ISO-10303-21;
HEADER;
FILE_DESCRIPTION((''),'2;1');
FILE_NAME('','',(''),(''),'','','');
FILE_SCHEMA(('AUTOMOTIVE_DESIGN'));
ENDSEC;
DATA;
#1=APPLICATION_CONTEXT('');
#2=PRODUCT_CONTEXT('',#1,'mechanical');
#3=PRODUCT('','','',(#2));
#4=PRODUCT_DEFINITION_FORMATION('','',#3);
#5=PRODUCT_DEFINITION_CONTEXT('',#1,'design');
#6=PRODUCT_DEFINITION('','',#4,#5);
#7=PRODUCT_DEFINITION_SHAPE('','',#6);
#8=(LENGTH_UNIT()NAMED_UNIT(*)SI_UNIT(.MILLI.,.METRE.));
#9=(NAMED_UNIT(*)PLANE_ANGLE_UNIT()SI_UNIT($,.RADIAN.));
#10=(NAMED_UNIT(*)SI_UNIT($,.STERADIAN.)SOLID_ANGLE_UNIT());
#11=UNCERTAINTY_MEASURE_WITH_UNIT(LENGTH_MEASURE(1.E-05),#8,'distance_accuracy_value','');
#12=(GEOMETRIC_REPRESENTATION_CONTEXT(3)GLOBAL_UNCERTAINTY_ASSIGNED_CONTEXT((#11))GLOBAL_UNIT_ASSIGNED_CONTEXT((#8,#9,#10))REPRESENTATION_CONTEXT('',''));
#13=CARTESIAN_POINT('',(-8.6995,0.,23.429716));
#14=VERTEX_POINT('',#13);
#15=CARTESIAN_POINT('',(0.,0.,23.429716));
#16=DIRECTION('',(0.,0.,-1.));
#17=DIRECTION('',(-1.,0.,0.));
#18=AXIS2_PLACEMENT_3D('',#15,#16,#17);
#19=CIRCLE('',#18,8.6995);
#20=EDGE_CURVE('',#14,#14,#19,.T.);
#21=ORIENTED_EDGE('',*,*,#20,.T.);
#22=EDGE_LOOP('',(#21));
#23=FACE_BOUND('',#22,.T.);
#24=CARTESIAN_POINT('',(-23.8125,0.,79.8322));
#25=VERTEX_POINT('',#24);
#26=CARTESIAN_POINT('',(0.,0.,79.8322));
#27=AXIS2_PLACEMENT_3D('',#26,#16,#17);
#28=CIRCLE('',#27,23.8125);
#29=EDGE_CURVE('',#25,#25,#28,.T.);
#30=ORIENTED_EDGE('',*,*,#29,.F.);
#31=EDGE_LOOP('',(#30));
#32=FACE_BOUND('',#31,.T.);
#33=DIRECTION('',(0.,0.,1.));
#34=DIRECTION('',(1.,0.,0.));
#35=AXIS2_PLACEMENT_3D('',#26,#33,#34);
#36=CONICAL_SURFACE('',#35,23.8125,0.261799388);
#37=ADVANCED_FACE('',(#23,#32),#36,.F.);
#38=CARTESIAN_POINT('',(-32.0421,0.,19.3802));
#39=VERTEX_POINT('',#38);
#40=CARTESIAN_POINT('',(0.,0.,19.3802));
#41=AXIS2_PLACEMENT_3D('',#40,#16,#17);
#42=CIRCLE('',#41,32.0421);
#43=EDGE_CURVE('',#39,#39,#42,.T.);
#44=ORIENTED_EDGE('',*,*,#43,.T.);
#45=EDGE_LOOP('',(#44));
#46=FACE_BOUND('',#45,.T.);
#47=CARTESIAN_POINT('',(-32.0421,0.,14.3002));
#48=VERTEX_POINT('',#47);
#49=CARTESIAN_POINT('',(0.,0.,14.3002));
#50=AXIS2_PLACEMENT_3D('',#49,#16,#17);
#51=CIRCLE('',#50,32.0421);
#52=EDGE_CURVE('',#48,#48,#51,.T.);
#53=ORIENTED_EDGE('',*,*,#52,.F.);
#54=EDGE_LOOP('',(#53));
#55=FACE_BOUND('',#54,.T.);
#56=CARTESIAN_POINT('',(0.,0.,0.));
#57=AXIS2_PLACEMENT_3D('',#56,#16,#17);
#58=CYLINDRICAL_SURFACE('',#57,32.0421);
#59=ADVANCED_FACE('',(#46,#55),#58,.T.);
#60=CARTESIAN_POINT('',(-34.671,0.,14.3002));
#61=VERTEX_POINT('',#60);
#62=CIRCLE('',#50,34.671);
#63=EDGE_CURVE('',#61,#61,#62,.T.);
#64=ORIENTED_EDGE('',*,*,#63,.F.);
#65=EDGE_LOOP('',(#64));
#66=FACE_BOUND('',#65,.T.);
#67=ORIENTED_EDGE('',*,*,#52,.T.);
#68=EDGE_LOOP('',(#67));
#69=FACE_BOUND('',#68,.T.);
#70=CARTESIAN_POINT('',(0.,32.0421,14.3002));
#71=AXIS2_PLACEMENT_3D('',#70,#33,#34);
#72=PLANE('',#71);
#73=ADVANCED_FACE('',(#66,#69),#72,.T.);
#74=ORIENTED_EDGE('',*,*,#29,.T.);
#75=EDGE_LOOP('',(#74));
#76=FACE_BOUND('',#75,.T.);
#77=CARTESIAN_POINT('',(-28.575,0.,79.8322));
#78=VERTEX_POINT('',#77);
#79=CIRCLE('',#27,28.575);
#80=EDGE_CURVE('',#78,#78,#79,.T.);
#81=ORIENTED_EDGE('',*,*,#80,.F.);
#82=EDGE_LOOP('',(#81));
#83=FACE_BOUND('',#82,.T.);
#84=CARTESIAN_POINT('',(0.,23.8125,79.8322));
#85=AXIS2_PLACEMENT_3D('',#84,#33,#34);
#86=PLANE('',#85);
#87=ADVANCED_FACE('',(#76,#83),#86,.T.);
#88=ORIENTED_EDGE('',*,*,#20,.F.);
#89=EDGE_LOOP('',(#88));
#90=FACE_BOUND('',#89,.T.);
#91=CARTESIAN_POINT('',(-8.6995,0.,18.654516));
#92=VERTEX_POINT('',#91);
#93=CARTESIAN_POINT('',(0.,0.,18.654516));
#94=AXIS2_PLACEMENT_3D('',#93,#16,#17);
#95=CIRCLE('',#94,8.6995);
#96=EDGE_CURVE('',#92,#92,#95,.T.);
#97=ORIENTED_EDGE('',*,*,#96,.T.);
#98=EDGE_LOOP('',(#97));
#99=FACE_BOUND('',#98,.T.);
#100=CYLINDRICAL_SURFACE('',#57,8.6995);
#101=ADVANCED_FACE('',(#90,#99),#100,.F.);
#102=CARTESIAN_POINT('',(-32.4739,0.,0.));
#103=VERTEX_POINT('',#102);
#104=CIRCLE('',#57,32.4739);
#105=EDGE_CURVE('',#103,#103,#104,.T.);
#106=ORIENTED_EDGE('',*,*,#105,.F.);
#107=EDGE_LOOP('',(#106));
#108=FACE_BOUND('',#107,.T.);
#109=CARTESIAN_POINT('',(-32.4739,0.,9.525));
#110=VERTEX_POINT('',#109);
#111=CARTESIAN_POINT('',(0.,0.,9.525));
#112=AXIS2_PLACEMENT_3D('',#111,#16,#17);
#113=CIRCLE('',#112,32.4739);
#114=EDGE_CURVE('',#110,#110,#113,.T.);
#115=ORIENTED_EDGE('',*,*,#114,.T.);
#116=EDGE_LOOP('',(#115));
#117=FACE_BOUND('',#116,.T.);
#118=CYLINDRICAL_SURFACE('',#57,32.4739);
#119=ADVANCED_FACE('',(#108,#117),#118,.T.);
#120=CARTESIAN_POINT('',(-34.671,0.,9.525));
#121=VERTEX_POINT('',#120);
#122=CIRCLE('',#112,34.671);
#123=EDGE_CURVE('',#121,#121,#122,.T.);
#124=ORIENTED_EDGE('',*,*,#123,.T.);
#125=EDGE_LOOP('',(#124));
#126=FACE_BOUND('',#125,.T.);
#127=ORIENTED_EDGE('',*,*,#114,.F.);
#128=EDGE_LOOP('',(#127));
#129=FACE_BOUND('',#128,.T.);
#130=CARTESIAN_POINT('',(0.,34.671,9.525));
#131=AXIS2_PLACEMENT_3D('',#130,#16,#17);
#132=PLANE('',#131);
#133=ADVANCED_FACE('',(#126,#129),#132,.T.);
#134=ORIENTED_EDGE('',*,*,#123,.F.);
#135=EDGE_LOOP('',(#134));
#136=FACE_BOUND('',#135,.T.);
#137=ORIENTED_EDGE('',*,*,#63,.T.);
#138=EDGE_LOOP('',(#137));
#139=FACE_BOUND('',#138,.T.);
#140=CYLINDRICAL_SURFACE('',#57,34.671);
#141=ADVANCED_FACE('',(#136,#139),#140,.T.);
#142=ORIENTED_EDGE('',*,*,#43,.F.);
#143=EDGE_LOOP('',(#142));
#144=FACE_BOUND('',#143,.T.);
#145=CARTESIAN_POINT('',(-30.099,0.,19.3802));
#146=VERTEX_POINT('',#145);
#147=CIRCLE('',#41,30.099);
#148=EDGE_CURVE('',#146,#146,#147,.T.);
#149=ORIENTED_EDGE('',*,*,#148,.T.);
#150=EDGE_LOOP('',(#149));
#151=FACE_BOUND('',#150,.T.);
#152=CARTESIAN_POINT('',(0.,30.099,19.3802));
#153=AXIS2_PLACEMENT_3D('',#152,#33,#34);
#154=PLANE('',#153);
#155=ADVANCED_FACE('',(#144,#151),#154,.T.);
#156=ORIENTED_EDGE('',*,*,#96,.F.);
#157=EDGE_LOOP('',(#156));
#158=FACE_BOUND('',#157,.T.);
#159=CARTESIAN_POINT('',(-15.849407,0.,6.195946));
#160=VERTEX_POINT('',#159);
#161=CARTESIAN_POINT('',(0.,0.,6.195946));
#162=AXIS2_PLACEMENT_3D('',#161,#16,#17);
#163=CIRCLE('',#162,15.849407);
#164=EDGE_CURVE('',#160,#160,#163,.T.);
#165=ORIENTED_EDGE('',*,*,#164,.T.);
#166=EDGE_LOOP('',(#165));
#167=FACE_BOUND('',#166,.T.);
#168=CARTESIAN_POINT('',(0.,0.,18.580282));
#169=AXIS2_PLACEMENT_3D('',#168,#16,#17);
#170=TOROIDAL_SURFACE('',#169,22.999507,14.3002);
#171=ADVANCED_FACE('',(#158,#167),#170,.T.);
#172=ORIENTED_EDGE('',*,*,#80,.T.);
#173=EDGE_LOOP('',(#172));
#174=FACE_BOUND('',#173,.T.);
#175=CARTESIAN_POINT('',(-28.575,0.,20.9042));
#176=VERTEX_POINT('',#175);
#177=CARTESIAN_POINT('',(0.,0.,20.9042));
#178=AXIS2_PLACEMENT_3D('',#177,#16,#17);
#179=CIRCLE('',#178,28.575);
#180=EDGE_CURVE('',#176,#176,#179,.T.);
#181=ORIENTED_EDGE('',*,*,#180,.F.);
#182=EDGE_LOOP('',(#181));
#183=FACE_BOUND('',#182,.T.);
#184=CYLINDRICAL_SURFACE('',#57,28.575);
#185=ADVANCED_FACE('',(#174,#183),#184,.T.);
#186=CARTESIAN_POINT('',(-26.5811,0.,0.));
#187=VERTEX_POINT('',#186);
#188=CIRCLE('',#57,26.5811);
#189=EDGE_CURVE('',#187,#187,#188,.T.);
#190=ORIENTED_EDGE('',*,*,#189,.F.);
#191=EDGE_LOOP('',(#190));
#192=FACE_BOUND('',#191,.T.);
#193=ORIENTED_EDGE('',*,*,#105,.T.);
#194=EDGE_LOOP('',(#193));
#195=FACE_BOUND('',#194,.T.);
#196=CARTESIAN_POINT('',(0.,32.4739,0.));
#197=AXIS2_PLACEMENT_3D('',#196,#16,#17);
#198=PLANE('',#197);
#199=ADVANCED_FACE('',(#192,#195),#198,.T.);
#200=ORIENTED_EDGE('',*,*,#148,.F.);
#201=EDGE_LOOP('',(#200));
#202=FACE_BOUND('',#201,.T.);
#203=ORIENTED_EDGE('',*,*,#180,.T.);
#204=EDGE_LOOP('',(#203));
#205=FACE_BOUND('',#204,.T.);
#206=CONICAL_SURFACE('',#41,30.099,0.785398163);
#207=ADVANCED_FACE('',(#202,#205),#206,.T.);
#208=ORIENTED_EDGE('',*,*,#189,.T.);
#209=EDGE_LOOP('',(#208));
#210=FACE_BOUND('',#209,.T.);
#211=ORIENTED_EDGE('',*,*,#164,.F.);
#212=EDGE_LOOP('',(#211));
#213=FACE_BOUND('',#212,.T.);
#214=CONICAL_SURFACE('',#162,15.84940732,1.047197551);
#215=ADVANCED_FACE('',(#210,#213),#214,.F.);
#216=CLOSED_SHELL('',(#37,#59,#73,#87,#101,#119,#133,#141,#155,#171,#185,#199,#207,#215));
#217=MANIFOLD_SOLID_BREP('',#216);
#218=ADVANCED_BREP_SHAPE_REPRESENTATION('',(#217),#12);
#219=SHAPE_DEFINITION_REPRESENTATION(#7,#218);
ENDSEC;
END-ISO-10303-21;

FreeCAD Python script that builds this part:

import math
import FreeCAD as App
import Part
import Sketcher
from FreeCAD import Vector
Q = App.Units.Quantity

doc = App.newDocument("Part")
params = doc.addObject("Spreadsheet::Sheet", "Params")
for row, (alias, value) in enumerate([
    ("sketch1_height", "0.2 in"),
    ("sketch1_radius", "0.563 in"),
    ("sketch1_height2", "2.32 in"),
    ("sketch1_width", "0.1875 in"),
    ("sketch1_width2", "0.232 in"),
    ("revolution_angle", "360 deg"),
], start=1):
    params.set(f"A{row}", alias)
    params.set(f"B{row}", "=" + value)
    params.setAlias(f"B{row}", alias)

body = doc.addObject("PartDesign::Body", "Body")

# Sketch on YZ plane
sketch1 = body.newObject("Sketcher::SketchObject", "Sketch")
sketch1.AttachmentSupport = (doc.getObject("YZ_Plane"), [""])
sketch1.MapMode = "FlatFace"
sketch1.addGeometry(Part.LineSegment(Vector(28.6, 20.9, 0), Vector(28.6, 79.8, 0)), False)
sketch1.addGeometry(Part.LineSegment(Vector(28.6, 79.8, 0), Vector(23.8, 79.8, 0)), False)
sketch1.addGeometry(Part.LineSegment(Vector(23.8, 79.8, 0), Vector(8.7, 23.4, 0)), False)
sketch1.addGeometry(Part.LineSegment(Vector(8.7, 23.4, 0), Vector(8.7, 18.7, 0)), False)
sketch1.addGeometry(Part.ArcOfCircle(Part.Circle(Vector(23, 18.6, 0), Vector(0, 0, 1), 14.3), math.radians(180), math.radians(240)), False)
sketch1.addGeometry(Part.LineSegment(Vector(15.8, 6.2, 0), Vector(26.6, 0, 0)), False)
sketch1.addGeometry(Part.LineSegment(Vector(26.6, 0, 0), Vector(32.5, 0, 0)), False)
sketch1.addGeometry(Part.LineSegment(Vector(32.5, 0, 0), Vector(32.5, 9.5, 0)), False)
sketch1.addGeometry(Part.LineSegment(Vector(32.5, 9.5, 0), Vector(34.7, 9.5, 0)), False)
sketch1.addGeometry(Part.LineSegment(Vector(34.7, 9.5, 0), Vector(34.7, 14.3, 0)), False)
sketch1.addGeometry(Part.LineSegment(Vector(34.7, 14.3, 0), Vector(32, 14.3, 0)), False)
sketch1.addGeometry(Part.LineSegment(Vector(32, 14.3, 0), Vector(32, 19.4, 0)), False)
sketch1.addGeometry(Part.LineSegment(Vector(32, 19.4, 0), Vector(30.1, 19.4, 0)), False)
sketch1.addGeometry(Part.LineSegment(Vector(30.1, 19.4, 0), Vector(28.6, 20.9, 0)), False)
sketch1.addConstraint(Sketcher.Constraint("Coincident", 0, 2, 1, 1))
sketch1.addConstraint(Sketcher.Constraint("Coincident", 1, 2, 2, 1))
sketch1.addConstraint(Sketcher.Constraint("Coincident", 2, 2, 3, 1))
sketch1.addConstraint(Sketcher.Constraint("Coincident", 3, 2, 4, 1))
sketch1.addConstraint(Sketcher.Constraint("Tangent", 4, 2, 5, 1))
sketch1.addConstraint(Sketcher.Constraint("Coincident", 5, 2, 6, 1))
sketch1.addConstraint(Sketcher.Constraint("Coincident", 6, 2, 7, 1))
sketch1.addConstraint(Sketcher.Constraint("Coincident", 7, 2, 8, 1))
sketch1.addConstraint(Sketcher.Constraint("Coincident", 8, 2, 9, 1))
sketch1.addConstraint(Sketcher.Constraint("Coincident", 9, 2, 10, 1))
sketch1.addConstraint(Sketcher.Constraint("Coincident", 10, 2, 11, 1))
sketch1.addConstraint(Sketcher.Constraint("Coincident", 11, 2, 12, 1))
sketch1.addConstraint(Sketcher.Constraint("Coincident", 12, 2, 13, 1))
sketch1.addConstraint(Sketcher.Constraint("Coincident", 13, 2, 0, 1))
sketch1.addConstraint(Sketcher.Constraint("Vertical", 0))
sketch1.addConstraint(Sketcher.Constraint("Horizontal", 1))
sketch1.addConstraint(Sketcher.Constraint("Vertical", 3))
sketch1.addConstraint(Sketcher.Constraint("Horizontal", 6))
sketch1.addConstraint(Sketcher.Constraint("Vertical", 7))
sketch1.addConstraint(Sketcher.Constraint("Horizontal", 8))
sketch1.addConstraint(Sketcher.Constraint("Vertical", 9))
sketch1.addConstraint(Sketcher.Constraint("Horizontal", 10))
sketch1.addConstraint(Sketcher.Constraint("Vertical", 11))
sketch1.addConstraint(Sketcher.Constraint("Horizontal", 12))
sketch1.addConstraint(Sketcher.Constraint("PointOnObject", 5, 2, -1))
sketch1.addConstraint(Sketcher.Constraint("Equal", 3, 9))
sketch1.addConstraint(Sketcher.Constraint("DistanceY", 11, 1, 11, 2, Q("0.2 in")))
sketch1.addConstraint(Sketcher.Constraint("Angle", 2, Q("-105 deg")))
sketch1.addConstraint(Sketcher.Constraint("Angle", 5, Q("-30 deg")))
sketch1.addConstraint(Sketcher.Constraint("Angle", 13, Q("135 deg")))
sketch1.addConstraint(Sketcher.Constraint("Radius", 4, Q("0.563 in")))
sketch1.addConstraint(Sketcher.Constraint("DistanceY", 0, 1, 0, 2, Q("2.32 in")))
sketch1.addConstraint(Sketcher.Constraint("DistanceX", 1, 2, 1, 1, Q("0.1875 in")))
sketch1.addConstraint(Sketcher.Constraint("DistanceX", 6, 1, 6, 2, Q("0.232 in")))
sketch1.addConstraint(Sketcher.Constraint("DistanceY", 3, 2, 3, 1, Q("0.188 in")))
sketch1.addConstraint(Sketcher.Constraint("DistanceY", 7, 1, 7, 2, Q("0.375 in")))
sketch1.addConstraint(Sketcher.Constraint("DistanceX", 12, 2, 9, 2, Q("0.18 in")))
sketch1.addConstraint(Sketcher.Constraint("DistanceX", 13, 2, 12, 2, Q("0.06 in")))
sketch1.addConstraint(Sketcher.Constraint("DistanceX", 8, 1, 8, 2, Q("0.0865 in")))
sketch1.addConstraint(Sketcher.Constraint("DistanceX", 10, 2, 10, 1, Q("0.1035 in")))
sketch1.addConstraint(Sketcher.Constraint("DistanceX", -1, 1, 0, 2, Q("1.125 in")))
sketch1.addConstraint(Sketcher.Constraint("DistanceX", 2, 2, 1, 2, Q("0.595 in")))
sketch1.setExpression("Constraints[26]", "Params.sketch1_height")
sketch1.setExpression("Constraints[30]", "Params.sketch1_radius")
sketch1.setExpression("Constraints[31]", "Params.sketch1_height2")
sketch1.setExpression("Constraints[32]", "Params.sketch1_width")
sketch1.setExpression("Constraints[33]", "Params.sketch1_width2")
revolution = body.newObject("PartDesign::Revolution", "Revolution")
revolution.Profile = sketch1
revolution.ReferenceAxis = (sketch1, ["V_Axis"])
revolution.setExpression("Angle", "Params.revolution_angle")

doc.recompute()
